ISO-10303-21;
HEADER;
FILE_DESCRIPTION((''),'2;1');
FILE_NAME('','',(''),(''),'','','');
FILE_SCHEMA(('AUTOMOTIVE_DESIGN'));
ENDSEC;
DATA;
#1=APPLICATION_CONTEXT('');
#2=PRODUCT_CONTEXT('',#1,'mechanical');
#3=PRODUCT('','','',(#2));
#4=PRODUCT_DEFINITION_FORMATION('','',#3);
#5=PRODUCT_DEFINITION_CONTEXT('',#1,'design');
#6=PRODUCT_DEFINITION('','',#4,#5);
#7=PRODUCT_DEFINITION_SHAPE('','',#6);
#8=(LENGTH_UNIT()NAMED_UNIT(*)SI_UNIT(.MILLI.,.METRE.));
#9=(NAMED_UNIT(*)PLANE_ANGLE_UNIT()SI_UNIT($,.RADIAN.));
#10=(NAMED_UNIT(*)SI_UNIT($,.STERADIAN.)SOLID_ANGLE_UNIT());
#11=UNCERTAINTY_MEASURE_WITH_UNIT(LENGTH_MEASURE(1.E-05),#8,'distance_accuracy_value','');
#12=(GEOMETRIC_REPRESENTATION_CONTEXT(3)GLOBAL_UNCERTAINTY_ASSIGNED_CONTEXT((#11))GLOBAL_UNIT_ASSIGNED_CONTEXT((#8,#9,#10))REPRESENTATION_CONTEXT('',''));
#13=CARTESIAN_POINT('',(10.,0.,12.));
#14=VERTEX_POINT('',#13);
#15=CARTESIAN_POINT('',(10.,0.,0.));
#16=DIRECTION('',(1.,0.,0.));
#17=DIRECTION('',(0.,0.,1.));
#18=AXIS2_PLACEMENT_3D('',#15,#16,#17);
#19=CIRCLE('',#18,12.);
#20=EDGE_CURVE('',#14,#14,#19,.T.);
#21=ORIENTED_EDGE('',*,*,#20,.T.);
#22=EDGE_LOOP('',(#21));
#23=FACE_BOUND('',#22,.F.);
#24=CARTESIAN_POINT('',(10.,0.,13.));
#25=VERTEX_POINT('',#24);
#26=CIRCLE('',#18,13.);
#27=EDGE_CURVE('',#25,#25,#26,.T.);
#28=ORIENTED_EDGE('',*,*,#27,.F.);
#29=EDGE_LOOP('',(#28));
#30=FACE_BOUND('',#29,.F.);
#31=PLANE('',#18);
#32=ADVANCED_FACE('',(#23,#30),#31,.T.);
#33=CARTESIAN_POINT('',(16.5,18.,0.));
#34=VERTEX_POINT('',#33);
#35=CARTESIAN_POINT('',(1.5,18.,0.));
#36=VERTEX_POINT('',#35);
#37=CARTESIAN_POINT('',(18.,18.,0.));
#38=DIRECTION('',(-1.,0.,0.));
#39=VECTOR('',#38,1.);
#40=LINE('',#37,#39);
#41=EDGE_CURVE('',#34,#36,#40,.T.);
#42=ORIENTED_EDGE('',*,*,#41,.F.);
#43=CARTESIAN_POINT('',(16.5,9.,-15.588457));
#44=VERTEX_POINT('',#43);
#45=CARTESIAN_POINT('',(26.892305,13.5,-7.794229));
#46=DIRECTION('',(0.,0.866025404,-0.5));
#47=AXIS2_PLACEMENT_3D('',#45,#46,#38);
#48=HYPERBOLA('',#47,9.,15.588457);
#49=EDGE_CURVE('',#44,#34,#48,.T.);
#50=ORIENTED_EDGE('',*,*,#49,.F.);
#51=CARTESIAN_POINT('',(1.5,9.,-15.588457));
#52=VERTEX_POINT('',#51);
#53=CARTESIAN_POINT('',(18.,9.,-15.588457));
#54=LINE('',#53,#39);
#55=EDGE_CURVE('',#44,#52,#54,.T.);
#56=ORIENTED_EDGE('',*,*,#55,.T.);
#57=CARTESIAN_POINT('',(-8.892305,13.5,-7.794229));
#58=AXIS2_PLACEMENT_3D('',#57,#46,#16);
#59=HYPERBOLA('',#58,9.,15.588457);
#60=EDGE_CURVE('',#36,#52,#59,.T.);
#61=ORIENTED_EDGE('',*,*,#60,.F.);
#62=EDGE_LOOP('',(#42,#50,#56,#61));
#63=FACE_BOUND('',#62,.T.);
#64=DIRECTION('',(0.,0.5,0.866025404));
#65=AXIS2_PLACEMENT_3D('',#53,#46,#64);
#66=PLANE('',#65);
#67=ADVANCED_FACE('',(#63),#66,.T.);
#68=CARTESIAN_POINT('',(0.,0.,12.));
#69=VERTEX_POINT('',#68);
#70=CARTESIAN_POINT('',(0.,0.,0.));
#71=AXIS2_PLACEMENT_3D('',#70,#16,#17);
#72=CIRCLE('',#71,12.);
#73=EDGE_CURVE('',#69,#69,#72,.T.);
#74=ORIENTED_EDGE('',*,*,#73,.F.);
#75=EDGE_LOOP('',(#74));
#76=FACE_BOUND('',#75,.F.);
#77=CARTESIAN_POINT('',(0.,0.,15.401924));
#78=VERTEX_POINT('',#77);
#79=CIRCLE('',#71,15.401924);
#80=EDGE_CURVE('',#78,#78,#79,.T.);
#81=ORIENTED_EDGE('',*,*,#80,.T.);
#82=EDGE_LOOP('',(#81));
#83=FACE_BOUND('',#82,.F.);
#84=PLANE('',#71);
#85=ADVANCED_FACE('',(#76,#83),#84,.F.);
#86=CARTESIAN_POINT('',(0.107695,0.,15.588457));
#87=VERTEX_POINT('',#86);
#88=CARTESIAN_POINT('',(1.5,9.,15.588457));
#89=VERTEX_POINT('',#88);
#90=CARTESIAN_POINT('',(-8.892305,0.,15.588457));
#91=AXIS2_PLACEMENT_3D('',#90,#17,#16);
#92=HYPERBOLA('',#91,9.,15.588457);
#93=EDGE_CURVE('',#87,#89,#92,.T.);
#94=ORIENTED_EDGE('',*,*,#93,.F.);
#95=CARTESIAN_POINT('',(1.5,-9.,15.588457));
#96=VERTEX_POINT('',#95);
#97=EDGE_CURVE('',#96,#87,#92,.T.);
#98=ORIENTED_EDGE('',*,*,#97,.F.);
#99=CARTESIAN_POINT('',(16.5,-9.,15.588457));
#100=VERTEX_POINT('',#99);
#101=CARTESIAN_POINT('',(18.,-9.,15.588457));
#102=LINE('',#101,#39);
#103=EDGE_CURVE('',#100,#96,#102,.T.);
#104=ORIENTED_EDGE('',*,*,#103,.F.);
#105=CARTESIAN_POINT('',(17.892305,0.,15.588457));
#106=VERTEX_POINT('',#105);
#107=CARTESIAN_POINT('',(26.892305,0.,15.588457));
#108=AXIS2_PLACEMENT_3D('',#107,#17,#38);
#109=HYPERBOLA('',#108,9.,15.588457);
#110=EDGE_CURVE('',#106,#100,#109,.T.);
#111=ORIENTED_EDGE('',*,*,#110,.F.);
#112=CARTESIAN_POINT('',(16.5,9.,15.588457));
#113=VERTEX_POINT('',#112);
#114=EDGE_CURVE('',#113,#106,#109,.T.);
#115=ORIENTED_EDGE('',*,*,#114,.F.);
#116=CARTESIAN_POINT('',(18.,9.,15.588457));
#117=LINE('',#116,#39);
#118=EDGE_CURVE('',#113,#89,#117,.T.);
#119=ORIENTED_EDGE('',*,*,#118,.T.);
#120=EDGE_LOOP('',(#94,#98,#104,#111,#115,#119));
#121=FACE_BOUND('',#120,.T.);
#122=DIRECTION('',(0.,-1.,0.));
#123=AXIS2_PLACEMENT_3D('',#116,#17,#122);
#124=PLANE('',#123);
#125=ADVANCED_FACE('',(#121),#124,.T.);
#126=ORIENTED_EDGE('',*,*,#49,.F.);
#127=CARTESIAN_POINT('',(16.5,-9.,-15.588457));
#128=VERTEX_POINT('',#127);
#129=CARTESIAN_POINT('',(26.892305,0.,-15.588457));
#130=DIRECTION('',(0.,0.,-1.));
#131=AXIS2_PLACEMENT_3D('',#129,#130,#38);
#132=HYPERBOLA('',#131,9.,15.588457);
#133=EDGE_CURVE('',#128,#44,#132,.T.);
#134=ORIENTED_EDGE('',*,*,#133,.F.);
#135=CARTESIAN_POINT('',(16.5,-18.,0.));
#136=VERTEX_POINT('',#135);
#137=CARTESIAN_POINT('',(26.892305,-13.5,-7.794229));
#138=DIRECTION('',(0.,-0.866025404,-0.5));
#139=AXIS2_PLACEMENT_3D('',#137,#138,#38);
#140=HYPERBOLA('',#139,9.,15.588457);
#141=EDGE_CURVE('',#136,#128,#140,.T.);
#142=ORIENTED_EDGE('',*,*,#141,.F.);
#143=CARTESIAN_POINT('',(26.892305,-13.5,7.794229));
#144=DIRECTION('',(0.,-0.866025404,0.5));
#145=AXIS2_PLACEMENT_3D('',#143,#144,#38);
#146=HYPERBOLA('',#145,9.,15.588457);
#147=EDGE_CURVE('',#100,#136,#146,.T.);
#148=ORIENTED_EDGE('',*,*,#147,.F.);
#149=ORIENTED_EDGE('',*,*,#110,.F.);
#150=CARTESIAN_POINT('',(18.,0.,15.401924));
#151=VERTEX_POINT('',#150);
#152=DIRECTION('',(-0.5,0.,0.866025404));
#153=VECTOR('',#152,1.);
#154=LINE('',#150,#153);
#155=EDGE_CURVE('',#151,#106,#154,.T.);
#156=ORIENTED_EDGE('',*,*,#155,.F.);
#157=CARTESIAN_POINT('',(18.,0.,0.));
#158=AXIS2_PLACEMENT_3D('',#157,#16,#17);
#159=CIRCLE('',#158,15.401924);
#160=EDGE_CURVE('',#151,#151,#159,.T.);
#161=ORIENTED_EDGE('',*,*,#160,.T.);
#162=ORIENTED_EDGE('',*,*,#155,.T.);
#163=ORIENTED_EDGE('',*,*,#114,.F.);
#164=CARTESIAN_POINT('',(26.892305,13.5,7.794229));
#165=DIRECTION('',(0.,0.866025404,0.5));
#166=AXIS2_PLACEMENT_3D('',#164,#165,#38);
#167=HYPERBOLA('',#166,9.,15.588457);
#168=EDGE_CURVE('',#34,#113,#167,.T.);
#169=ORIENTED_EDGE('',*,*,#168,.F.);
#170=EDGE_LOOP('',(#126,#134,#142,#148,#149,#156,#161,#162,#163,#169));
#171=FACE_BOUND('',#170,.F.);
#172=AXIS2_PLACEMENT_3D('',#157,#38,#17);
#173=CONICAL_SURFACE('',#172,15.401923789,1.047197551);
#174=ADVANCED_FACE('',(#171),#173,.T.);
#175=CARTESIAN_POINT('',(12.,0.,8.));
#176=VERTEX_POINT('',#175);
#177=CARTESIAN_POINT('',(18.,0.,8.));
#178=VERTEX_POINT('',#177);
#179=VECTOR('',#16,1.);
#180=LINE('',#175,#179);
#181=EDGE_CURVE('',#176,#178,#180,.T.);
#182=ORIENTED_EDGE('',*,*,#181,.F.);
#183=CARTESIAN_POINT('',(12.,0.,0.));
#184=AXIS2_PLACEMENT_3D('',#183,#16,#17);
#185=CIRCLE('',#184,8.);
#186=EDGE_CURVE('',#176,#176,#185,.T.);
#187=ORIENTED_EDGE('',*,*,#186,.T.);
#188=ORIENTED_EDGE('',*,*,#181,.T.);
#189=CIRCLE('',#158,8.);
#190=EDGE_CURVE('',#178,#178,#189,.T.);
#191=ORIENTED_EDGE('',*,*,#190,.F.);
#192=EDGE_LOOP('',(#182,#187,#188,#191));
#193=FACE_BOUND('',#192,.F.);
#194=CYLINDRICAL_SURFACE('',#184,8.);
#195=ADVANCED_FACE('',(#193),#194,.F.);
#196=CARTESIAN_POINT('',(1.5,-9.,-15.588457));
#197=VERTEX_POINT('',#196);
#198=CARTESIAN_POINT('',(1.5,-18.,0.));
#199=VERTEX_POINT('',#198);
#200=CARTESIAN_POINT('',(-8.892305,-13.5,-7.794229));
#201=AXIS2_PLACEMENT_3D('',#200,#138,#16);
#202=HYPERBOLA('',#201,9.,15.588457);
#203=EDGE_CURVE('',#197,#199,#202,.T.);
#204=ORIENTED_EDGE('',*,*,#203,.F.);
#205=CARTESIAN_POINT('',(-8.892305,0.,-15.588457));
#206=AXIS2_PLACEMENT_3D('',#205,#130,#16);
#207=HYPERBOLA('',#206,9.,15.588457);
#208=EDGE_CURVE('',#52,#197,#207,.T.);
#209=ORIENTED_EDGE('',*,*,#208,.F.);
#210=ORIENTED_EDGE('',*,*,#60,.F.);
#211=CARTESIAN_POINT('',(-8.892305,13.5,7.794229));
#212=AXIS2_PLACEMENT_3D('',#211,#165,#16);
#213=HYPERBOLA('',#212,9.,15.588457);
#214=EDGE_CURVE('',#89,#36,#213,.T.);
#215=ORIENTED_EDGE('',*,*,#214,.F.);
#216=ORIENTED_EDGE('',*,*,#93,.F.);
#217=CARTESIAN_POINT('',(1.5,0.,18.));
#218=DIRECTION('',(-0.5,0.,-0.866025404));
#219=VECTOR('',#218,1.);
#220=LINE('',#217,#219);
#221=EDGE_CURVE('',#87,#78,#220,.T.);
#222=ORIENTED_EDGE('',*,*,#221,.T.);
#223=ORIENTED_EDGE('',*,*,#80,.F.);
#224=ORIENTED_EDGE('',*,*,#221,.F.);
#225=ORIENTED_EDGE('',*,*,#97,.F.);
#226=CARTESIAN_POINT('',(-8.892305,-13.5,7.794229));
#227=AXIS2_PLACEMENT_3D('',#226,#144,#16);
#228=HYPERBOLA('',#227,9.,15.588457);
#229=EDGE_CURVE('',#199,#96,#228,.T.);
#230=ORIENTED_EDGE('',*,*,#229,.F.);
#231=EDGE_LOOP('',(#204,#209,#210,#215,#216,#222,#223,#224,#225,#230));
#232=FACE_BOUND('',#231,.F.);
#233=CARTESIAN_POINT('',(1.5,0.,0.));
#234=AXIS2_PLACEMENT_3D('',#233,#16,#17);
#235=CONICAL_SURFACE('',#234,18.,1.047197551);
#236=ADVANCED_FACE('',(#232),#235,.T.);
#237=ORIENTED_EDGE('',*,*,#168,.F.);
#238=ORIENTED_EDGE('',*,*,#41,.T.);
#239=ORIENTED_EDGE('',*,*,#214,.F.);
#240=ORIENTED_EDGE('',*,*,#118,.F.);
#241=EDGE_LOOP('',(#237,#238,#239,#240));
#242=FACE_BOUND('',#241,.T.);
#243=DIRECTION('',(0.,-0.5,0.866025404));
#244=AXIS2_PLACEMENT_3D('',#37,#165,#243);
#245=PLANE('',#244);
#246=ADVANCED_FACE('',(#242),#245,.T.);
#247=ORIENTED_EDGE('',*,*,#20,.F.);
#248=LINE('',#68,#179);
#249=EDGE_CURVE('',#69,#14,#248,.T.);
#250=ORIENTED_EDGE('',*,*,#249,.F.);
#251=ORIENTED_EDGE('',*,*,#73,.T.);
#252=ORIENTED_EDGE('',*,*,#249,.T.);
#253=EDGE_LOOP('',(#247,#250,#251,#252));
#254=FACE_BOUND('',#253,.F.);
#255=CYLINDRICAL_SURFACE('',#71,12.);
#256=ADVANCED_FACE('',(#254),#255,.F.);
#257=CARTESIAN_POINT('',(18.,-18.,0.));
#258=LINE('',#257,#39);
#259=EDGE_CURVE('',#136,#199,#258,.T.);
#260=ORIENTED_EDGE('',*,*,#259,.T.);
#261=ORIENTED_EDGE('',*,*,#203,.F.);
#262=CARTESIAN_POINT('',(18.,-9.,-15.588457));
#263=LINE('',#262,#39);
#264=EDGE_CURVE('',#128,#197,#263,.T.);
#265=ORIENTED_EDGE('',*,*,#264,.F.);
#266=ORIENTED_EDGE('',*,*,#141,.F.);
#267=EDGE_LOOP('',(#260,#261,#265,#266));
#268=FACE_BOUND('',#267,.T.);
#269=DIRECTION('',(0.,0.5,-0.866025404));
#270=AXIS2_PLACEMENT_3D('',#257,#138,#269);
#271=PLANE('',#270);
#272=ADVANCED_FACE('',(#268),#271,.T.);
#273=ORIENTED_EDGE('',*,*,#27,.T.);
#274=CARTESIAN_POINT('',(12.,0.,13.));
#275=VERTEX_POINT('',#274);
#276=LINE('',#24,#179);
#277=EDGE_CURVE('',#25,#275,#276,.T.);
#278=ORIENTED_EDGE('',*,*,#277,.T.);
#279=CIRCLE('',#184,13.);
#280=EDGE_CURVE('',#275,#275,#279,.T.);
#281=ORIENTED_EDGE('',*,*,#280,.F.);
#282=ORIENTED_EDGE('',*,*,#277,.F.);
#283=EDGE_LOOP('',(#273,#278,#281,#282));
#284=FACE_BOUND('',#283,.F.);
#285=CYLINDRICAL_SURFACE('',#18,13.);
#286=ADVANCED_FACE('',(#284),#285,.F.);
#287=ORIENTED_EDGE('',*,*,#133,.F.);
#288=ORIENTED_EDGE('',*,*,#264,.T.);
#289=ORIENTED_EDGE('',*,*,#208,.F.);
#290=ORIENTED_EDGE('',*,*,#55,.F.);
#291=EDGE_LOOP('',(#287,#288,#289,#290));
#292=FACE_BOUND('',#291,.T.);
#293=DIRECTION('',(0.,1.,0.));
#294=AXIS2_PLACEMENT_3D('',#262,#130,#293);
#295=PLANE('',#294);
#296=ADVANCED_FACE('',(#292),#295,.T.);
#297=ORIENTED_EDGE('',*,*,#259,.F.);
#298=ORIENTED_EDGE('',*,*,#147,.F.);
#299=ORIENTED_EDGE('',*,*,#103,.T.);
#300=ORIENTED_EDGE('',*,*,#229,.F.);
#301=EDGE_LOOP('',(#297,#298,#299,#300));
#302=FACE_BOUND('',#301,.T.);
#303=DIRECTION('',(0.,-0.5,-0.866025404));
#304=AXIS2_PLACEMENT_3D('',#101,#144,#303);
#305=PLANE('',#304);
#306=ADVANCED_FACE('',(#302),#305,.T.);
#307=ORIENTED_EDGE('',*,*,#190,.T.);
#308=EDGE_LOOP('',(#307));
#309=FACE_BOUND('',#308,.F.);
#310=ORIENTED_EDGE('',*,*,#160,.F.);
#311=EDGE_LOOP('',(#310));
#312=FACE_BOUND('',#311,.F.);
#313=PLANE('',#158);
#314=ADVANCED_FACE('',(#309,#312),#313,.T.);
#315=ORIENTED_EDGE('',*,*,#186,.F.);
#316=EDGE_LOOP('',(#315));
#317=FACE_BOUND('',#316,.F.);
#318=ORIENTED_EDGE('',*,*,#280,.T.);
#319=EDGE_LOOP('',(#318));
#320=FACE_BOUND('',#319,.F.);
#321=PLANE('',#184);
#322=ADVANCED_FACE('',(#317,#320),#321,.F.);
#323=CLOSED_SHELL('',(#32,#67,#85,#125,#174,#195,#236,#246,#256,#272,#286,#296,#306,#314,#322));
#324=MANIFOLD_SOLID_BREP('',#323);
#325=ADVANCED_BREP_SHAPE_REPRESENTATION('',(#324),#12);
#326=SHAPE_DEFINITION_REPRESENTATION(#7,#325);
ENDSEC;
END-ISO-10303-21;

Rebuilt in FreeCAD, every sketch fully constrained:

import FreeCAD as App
import Part
import Sketcher

V = App.Vector
Q = App.Units.Quantity

doc = App.newDocument("Part")
params = doc.addObject("Spreadsheet::Sheet", "Params")
for row, (alias, value) in enumerate([
    ("sketch1_width", "15 mm"),
    ("sketch1_width2", "10 mm"),
    ("sketch1_width3", "2 mm"),
    ("sketch1_width4", "6 mm"),
    ("sketch1_height", "1 mm"),
    ("revolution_angle", "360 deg"),
    ("sketch2_width", "18 mm"),
    ("sketch2_length", "18 mm"),
    ("sketch2_width2", "48.8 mm"),
    ("pocket1_length", "30 mm"),
], start=1):
    params.set(f"A{row}", alias)
    params.set(f"B{row}", "=" + value)
    params.setAlias(f"B{row}", alias)

body = doc.addObject("PartDesign::Body", "Body")

# Sketch on XY plane
sketch1 = doc.addObject("Sketcher::SketchObject", "Sketch")
body.addObject(sketch1)
sketch1.AttachmentSupport = (doc.XY_Plane, [""])
sketch1.MapMode = "FlatFace"
sketch1.addGeometry([
    Part.LineSegment(V(18, 15.401924, 0), V(16.5, 18, 0)),  # 0
    Part.LineSegment(V(16.5, 18, 0), V(1.5, 18, 0)),  # 1
    Part.LineSegment(V(1.5, 18, 0), V(0, 15.401924, 0)),  # 2
    Part.LineSegment(V(0, 15.401924, 0), V(0, 12, 0)),  # 3
    Part.LineSegment(V(0, 12, 0), V(10, 12, 0)),  # 4
    Part.LineSegment(V(10, 12, 0), V(10, 13, 0)),  # 5
    Part.LineSegment(V(10, 13, 0), V(12, 13, 0)),  # 6
    Part.LineSegment(V(12, 13, 0), V(12, 8, 0)),  # 7
    Part.LineSegment(V(12, 8, 0), V(18, 8, 0)),  # 8
    Part.LineSegment(V(18, 8, 0), V(18, 15.401924, 0)),  # 9
], False)
sketch1.addConstraint([
    Sketcher.Constraint("Coincident", 0, 2, 1, 1),
    Sketcher.Constraint("Coincident", 1, 2, 2, 1),
    Sketcher.Constraint("Coincident", 2, 2, 3, 1),
    Sketcher.Constraint("Coincident", 3, 2, 4, 1),
    Sketcher.Constraint("Coincident", 4, 2, 5, 1),
    Sketcher.Constraint("Coincident", 5, 2, 6, 1),
    Sketcher.Constraint("Coincident", 6, 2, 7, 1),
    Sketcher.Constraint("Coincident", 7, 2, 8, 1),
    Sketcher.Constraint("Coincident", 8, 2, 9, 1),
    Sketcher.Constraint("Coincident", 9, 2, 0, 1),
    Sketcher.Constraint("Horizontal", 1),
    Sketcher.Constraint("Vertical", 3),
    Sketcher.Constraint("Horizontal", 4),
    Sketcher.Constraint("Vertical", 5),
    Sketcher.Constraint("Horizontal", 6),
    Sketcher.Constraint("Vertical", 7),
    Sketcher.Constraint("Horizontal", 8),
    Sketcher.Constraint("Vertical", 9),
    Sketcher.Constraint("PointOnObject", 2, 2, -2),
    Sketcher.Constraint("Horizontal", 2, 2, 9, 2),
    Sketcher.Constraint("Equal", 0, 2),
    Sketcher.Constraint("DistanceX", 1, 2, 1, 1, 15.0),
    Sketcher.Constraint("DistanceX", 4, 1, 4, 2, 10.0),
    Sketcher.Constraint("DistanceX", 6, 1, 6, 2, 2.0),
    Sketcher.Constraint("DistanceX", 8, 1, 8, 2, 6.0),
    Sketcher.Constraint("DistanceY", 5, 1, 5, 2, 1.0),
    Sketcher.Constraint("DistanceY", 7, 2, 7, 1, 5.0),
    Sketcher.Constraint("Angle", 0, Q("120 deg")),
    Sketcher.Constraint("DistanceY", -1, 1, 0, 2, 18.0),
    Sketcher.Constraint("DistanceY", -1, 1, 3, 2, 12.0),
])
sketch1.setExpression("Constraints[21]", "Params.sketch1_width")
sketch1.setExpression("Constraints[22]", "Params.sketch1_width2")
sketch1.setExpression("Constraints[23]", "Params.sketch1_width3")
sketch1.setExpression("Constraints[24]", "Params.sketch1_width4")
sketch1.setExpression("Constraints[25]", "Params.sketch1_height")
revolution = doc.addObject("PartDesign::Revolution", "Revolution")
body.addObject(revolution)
revolution.Profile = sketch1
revolution.ReferenceAxis = (sketch1, ["H_Axis"])
revolution.setExpression("Angle", "Params.revolution_angle")

# Sketch on YZ plane
sketch2 = doc.addObject("Sketcher::SketchObject", "Sketch001")
body.addObject(sketch2)
sketch2.AttachmentSupport = (doc.YZ_Plane, [""])
sketch2.MapMode = "FlatFace"
sketch2.AttachmentOffset = App.Placement(V(0, 0, 18), App.Rotation())
sketch2.addGeometry([
    Part.LineSegment(V(24.4, 24.4, 0), V(-24.4, 24.4, 0)),  # 0
    Part.LineSegment(V(-24.4, 24.4, 0), V(-24.4, -24.4, 0)),  # 1
    Part.LineSegment(V(-24.4, -24.4, 0), V(24.4, -24.4, 0)),  # 2
    Part.LineSegment(V(24.4, -24.4, 0), V(24.4, 24.4, 0)),  # 3
    Part.LineSegment(V(9, 15.588457, 0), V(18, 0, 0)),  # 4
    Part.LineSegment(V(18, 0, 0), V(9, -15.588457, 0)),  # 5
    Part.LineSegment(V(9, -15.588457, 0), V(-9, -15.588457, 0)),  # 6
    Part.LineSegment(V(-9, -15.588457, 0), V(-18, 0, 0)),  # 7
    Part.LineSegment(V(-18, 0, 0), V(-9, 15.588457, 0)),  # 8
    Part.LineSegment(V(-9, 15.588457, 0), V(9, 15.588457, 0)),  # 9
], False)
sketch2.addConstraint([
    Sketcher.Constraint("Coincident", 0, 2, 1, 1),
    Sketcher.Constraint("Coincident", 1, 2, 2, 1),
    Sketcher.Constraint("Coincident", 2, 2, 3, 1),
    Sketcher.Constraint("Coincident", 3, 2, 0, 1),
    Sketcher.Constraint("Coincident", 4, 2, 5, 1),
    Sketcher.Constraint("Coincident", 5, 2, 6, 1),
    Sketcher.Constraint("Coincident", 6, 2, 7, 1),
    Sketcher.Constraint("Coincident", 7, 2, 8, 1),
    Sketcher.Constraint("Coincident", 8, 2, 9, 1),
    Sketcher.Constraint("Coincident", 9, 2, 4, 1),
    Sketcher.Constraint("Horizontal", 0),
    Sketcher.Constraint("Vertical", 1),
    Sketcher.Constraint("Horizontal", 2),
    Sketcher.Constraint("Vertical", 3),
    Sketcher.Constraint("Horizontal", 6),
    Sketcher.Constraint("Horizontal", 9),
    Sketcher.Constraint("Symmetric", 0, 2, 2, 2, -1, 1),
    Sketcher.Constraint("Symmetric", 4, 2, 7, 2, -1, 1),
    Sketcher.Constraint("Symmetric", 5, 2, 8, 2, -1, 1),
    Sketcher.Constraint("PointOnObject", 4, 2, -1),
    Sketcher.Constraint("Parallel", 4, 7),
    Sketcher.Constraint("Vertical", 6, 2, 8, 2),
    Sketcher.Constraint("Equal", 2, 1),
    Sketcher.Constraint("DistanceX", 6, 2, 6, 1, 18.0),
    Sketcher.Constraint("Angle", 4, Q("-60 deg")),
    Sketcher.Constraint("Distance", 4, 18.0),
    Sketcher.Constraint("DistanceX", 0, 2, 0, 1, 48.8),
])
sketch2.setExpression("Constraints[23]", "Params.sketch2_width")
sketch2.setExpression("Constraints[25]", "Params.sketch2_length")
sketch2.setExpression("Constraints[26]", "Params.sketch2_width2")
pocket1 = doc.addObject("PartDesign::Pocket", "Pocket")
body.addObject(pocket1)
pocket1.Profile = sketch2
pocket1.setExpression("Length", "Params.pocket1_length")

doc.recompute()
